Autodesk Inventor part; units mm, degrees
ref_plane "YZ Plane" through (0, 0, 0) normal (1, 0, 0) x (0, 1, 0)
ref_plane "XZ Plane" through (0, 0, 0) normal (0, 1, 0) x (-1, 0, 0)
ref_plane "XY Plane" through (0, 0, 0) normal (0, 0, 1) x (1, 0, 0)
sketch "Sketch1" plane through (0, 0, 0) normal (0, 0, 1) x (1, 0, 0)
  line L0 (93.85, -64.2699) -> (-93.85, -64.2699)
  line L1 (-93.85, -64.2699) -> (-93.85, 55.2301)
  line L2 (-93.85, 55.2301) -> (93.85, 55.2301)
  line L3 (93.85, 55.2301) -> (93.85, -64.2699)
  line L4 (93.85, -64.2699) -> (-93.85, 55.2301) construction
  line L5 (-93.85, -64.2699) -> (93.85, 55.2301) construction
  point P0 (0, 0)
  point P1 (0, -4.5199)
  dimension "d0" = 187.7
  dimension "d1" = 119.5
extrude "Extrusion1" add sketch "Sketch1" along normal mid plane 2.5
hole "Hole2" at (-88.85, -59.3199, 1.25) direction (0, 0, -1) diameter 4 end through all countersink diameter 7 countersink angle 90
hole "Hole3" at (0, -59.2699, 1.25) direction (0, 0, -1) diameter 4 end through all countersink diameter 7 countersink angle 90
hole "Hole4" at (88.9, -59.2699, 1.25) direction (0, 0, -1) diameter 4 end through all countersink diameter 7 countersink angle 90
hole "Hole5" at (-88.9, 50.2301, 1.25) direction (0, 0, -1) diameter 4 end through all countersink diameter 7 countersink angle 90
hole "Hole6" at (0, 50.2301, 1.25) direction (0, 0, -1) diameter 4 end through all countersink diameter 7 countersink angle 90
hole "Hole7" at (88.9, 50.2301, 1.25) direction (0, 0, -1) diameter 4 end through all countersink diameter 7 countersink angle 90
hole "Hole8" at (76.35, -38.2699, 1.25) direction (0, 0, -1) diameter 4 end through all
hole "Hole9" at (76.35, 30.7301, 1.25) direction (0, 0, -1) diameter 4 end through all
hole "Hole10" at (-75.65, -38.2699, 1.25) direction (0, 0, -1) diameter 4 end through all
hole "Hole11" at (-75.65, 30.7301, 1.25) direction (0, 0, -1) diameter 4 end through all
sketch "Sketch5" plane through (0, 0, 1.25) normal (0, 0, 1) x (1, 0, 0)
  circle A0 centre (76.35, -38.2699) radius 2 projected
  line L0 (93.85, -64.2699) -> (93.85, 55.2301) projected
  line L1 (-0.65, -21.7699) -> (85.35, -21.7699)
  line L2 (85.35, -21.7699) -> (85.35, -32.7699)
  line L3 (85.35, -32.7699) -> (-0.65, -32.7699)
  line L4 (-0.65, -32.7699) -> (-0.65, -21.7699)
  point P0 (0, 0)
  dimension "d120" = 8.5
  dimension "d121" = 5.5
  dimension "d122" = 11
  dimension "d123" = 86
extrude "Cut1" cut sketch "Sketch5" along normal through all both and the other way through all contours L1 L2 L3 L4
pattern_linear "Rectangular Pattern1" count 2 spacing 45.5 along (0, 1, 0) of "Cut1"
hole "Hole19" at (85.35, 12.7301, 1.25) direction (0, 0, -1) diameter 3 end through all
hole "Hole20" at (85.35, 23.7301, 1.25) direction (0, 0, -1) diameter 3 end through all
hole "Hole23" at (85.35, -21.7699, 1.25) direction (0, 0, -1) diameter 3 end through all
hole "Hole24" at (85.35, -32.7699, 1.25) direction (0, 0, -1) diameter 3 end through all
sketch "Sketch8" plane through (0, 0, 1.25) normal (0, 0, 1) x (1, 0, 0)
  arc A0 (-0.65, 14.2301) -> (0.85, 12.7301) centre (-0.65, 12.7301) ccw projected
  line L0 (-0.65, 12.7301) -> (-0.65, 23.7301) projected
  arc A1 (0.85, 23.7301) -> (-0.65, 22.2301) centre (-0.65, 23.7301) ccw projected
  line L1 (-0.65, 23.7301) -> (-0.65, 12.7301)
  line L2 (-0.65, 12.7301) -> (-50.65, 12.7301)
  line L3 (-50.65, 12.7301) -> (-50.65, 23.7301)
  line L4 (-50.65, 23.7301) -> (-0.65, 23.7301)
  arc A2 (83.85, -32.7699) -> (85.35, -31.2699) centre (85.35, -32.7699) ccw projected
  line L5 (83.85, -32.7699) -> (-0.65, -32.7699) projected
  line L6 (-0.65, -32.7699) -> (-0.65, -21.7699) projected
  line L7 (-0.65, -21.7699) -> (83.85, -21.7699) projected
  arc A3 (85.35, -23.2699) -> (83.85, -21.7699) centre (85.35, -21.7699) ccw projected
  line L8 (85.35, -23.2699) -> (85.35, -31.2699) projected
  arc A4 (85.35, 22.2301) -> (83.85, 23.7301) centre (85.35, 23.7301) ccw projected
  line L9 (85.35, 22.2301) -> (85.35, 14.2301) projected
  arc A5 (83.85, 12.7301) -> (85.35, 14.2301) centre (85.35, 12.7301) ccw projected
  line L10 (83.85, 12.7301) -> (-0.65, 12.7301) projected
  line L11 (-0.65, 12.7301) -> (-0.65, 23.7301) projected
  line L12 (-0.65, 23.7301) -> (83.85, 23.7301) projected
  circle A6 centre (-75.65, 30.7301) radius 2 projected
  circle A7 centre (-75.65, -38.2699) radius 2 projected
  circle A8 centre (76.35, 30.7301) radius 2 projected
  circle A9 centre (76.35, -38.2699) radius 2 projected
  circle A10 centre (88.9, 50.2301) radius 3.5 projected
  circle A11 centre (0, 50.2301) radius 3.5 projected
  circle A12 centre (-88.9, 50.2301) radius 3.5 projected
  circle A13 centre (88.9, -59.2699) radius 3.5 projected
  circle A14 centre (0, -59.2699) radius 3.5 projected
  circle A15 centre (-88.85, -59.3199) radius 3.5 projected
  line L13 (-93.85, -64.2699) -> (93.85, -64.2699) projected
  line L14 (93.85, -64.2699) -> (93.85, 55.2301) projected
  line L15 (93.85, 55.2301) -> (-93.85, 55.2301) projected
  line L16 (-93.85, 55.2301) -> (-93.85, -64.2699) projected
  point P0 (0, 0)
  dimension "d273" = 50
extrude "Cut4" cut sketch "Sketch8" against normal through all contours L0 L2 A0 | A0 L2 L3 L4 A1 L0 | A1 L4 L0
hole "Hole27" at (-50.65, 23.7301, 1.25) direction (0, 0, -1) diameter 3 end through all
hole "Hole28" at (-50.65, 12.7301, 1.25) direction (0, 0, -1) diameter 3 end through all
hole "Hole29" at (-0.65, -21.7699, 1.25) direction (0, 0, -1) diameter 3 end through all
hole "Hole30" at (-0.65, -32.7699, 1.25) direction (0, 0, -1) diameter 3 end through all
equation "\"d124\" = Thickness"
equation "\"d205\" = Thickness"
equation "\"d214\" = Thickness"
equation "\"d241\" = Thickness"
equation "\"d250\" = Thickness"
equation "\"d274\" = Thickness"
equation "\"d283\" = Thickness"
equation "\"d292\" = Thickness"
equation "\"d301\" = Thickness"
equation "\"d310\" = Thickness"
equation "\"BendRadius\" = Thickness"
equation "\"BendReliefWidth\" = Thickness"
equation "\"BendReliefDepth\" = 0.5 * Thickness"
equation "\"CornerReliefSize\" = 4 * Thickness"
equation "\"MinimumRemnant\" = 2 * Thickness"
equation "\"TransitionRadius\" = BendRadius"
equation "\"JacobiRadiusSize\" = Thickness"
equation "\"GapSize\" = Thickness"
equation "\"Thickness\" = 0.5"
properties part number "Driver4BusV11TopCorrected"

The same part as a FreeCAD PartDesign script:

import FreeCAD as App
import Part
import Sketcher


def add_polygon(sketch, points):
    """Adds a closed chain of lines whose ends are joined by coincident constraints."""
    first, n = sketch.GeometryCount, len(points)
    for a, b in zip(points, points[1:] + points[:1]):
        sketch.addGeometry(Part.LineSegment(App.Vector(*a, 0), App.Vector(*b, 0)), False)
    for i in range(n):
        sketch.addConstraint(Sketcher.Constraint("Coincident", first + i, 2, first + (i + 1) % n, 1))

doc = App.newDocument("Part")
body = doc.addObject("PartDesign::Body", "Body")

# Sketch on XY plane
sketch1 = body.newObject("Sketcher::SketchObject", "Sketch")
sketch1.AttachmentSupport = (doc.getObject("XY_Plane"), [""])
sketch1.MapMode = "FlatFace"
add_polygon(sketch1, [(-94, -64), (94, -64), (94, 55), (-94, 55)])  # lines 0-3
sketch1.addConstraint([
    Sketcher.Constraint("Horizontal", 0),
    Sketcher.Constraint("Vertical", 1),
    Sketcher.Constraint("Horizontal", 2),
    Sketcher.Constraint("Vertical", 3),
    Sketcher.Constraint("DistanceX", 0, 1, 0, 2, 187.7),
    Sketcher.Constraint("DistanceY", 1, 1, 1, 2, 119.5),
    Sketcher.Constraint("DistanceX", -1, 1, 0, 2, 93.85),
    Sketcher.Constraint("DistanceY", 0, 2, -1, 1, 64.27),
])
pad1 = body.newObject("PartDesign::Pad", "Pad")
pad1.Profile = sketch1
pad1.Length = 2.5
pad1.Midplane = True

# Sketch on XY plane
sketch2 = body.newObject("Sketcher::SketchObject", "Sketch001")
sketch2.AttachmentSupport = (doc.getObject("XY_Plane"), [""])
sketch2.MapMode = "FlatFace"
sketch2.AttachmentOffset = App.Placement(App.Vector(0, 0, 1.25), App.Rotation())
sketch2.addGeometry(Part.Circle(App.Vector(-88.8, -59.3, 0), App.Vector(0, 0, 1), 2), False)
sketch2.addConstraint([
    Sketcher.Constraint("Diameter", 0, 4.0),
    Sketcher.Constraint("DistanceX", 0, 3, -1, 1, 88.85),
    Sketcher.Constraint("DistanceY", 0, 3, -1, 1, 59.32),
])
doc.recompute()
hole = body.newObject("PartDesign::Hole", "Hole")
hole.Profile = sketch2
hole.ThreadType = "None"
hole.Diameter = 4
hole.DepthType = "ThroughAll"
hole.HoleCutType = "Countersink"
hole.HoleCutDiameter = 7
hole.HoleCutCountersinkAngle = 90

# Sketch on XY plane
sketch3 = body.newObject("Sketcher::SketchObject", "Sketch002")
sketch3.AttachmentSupport = (doc.getObject("XY_Plane"), [""])
sketch3.MapMode = "FlatFace"
sketch3.AttachmentOffset = App.Placement(App.Vector(0, 0, 1.25), App.Rotation())
sketch3.addGeometry(Part.Circle(App.Vector(0, -59.3, 0), App.Vector(0, 0, 1), 2), False)
sketch3.addConstraint([
    Sketcher.Constraint("PointOnObject", 0, 3, -2),
    Sketcher.Constraint("Diameter", 0, 4.0),
    Sketcher.Constraint("DistanceY", 0, 3, -1, 1, 59.27),
])
doc.recompute()
hole2 = body.newObject("PartDesign::Hole", "Hole001")
hole2.Profile = sketch3
hole2.ThreadType = "None"
hole2.Diameter = 4
hole2.DepthType = "ThroughAll"
hole2.HoleCutType = "Countersink"
hole2.HoleCutDiameter = 7
hole2.HoleCutCountersinkAngle = 90

# Sketch on XY plane
sketch4 = body.newObject("Sketcher::SketchObject", "Sketch003")
sketch4.AttachmentSupport = (doc.getObject("XY_Plane"), [""])
sketch4.MapMode = "FlatFace"
sketch4.AttachmentOffset = App.Placement(App.Vector(0, 0, 1.25), App.Rotation())
sketch4.addGeometry(Part.Circle(App.Vector(88.9, -59.3, 0), App.Vector(0, 0, 1), 2), False)
sketch4.addConstraint([
    Sketcher.Constraint("Diameter", 0, 4.0),
    Sketcher.Constraint("DistanceX", -1, 1, 0, 3, 88.9),
    Sketcher.Constraint("DistanceY", 0, 3, -1, 1, 59.27),
])
doc.recompute()
hole3 = body.newObject("PartDesign::Hole", "Hole002")
hole3.Profile = sketch4
hole3.ThreadType = "None"
hole3.Diameter = 4
hole3.DepthType = "ThroughAll"
hole3.HoleCutType = "Countersink"
hole3.HoleCutDiameter = 7
hole3.HoleCutCountersinkAngle = 90

# Sketch on XY plane
sketch5 = body.newObject("Sketcher::SketchObject", "Sketch004")
sketch5.AttachmentSupport = (doc.getObject("XY_Plane"), [""])
sketch5.MapMode = "FlatFace"
sketch5.AttachmentOffset = App.Placement(App.Vector(0, 0, 1.25), App.Rotation())
sketch5.addGeometry(Part.Circle(App.Vector(-88.9, 50.2, 0), App.Vector(0, 0, 1), 2), False)
sketch5.addConstraint([
    Sketcher.Constraint("Diameter", 0, 4.0),
    Sketcher.Constraint("DistanceX", 0, 3, -1, 1, 88.9),
    Sketcher.Constraint("DistanceY", -1, 1, 0, 3, 50.23),
])
doc.recompute()
hole4 = body.newObject("PartDesign::Hole", "Hole003")
hole4.Profile = sketch5
hole4.ThreadType = "None"
hole4.Diameter = 4
hole4.DepthType = "ThroughAll"
hole4.HoleCutType = "Countersink"
hole4.HoleCutDiameter = 7
hole4.HoleCutCountersinkAngle = 90

# Sketch on XY plane
sketch6 = body.newObject("Sketcher::SketchObject", "Sketch005")
sketch6.AttachmentSupport = (doc.getObject("XY_Plane"), [""])
sketch6.MapMode = "FlatFace"
sketch6.AttachmentOffset = App.Placement(App.Vector(0, 0, 1.25), App.Rotation())
sketch6.addGeometry(Part.Circle(App.Vector(0, 50.2, 0), App.Vector(0, 0, 1), 2), False)
sketch6.addConstraint([
    Sketcher.Constraint("PointOnObject", 0, 3, -2),
    Sketcher.Constraint("Diameter", 0, 4.0),
    Sketcher.Constraint("DistanceY", -1, 1, 0, 3, 50.23),
])
doc.recompute()
hole5 = body.newObject("PartDesign::Hole", "Hole004")
hole5.Profile = sketch6
hole5.ThreadType = "None"
hole5.Diameter = 4
hole5.DepthType = "ThroughAll"
hole5.HoleCutType = "Countersink"
hole5.HoleCutDiameter = 7
hole5.HoleCutCountersinkAngle = 90

# Sketch on XY plane
sketch7 = body.newObject("Sketcher::SketchObject", "Sketch006")
sketch7.AttachmentSupport = (doc.getObject("XY_Plane"), [""])
sketch7.MapMode = "FlatFace"
sketch7.AttachmentOffset = App.Placement(App.Vector(0, 0, 1.25), App.Rotation())
sketch7.addGeometry(Part.Circle(App.Vector(88.9, 50.2, 0), App.Vector(0, 0, 1), 2), False)
sketch7.addConstraint([
    Sketcher.Constraint("Diameter", 0, 4.0),
    Sketcher.Constraint("DistanceX", -1, 1, 0, 3, 88.9),
    Sketcher.Constraint("DistanceY", -1, 1, 0, 3, 50.23),
])
doc.recompute()
hole6 = body.newObject("PartDesign::Hole", "Hole005")
hole6.Profile = sketch7
hole6.ThreadType = "None"
hole6.Diameter = 4
hole6.DepthType = "ThroughAll"
hole6.HoleCutType = "Countersink"
hole6.HoleCutDiameter = 7
hole6.HoleCutCountersinkAngle = 90

# Sketch on XY plane
sketch8 = body.newObject("Sketcher::SketchObject", "Sketch007")
sketch8.AttachmentSupport = (doc.getObject("XY_Plane"), [""])
sketch8.MapMode = "FlatFace"
sketch8.AttachmentOffset = App.Placement(App.Vector(0, 0, 1.25), App.Rotation())
sketch8.addGeometry(Part.Circle(App.Vector(76.3, -38.3, 0), App.Vector(0, 0, 1), 2), False)
sketch8.addConstraint([
    Sketcher.Constraint("Diameter", 0, 4.0),
    Sketcher.Constraint("DistanceX", -1, 1, 0, 3, 76.35),
    Sketcher.Constraint("DistanceY", 0, 3, -1, 1, 38.27),
])
doc.recompute()
hole7 = body.newObject("PartDesign::Hole", "Hole006")
hole7.Profile = sketch8
hole7.ThreadType = "None"
hole7.Diameter = 4
hole7.DepthType = "ThroughAll"

# Sketch on XY plane
sketch9 = body.newObject("Sketcher::SketchObject", "Sketch008")
sketch9.AttachmentSupport = (doc.getObject("XY_Plane"), [""])
sketch9.MapMode = "FlatFace"
sketch9.AttachmentOffset = App.Placement(App.Vector(0, 0, 1.25), App.Rotation())
sketch9.addGeometry(Part.Circle(App.Vector(76.3, 30.7, 0), App.Vector(0, 0, 1), 2), False)
sketch9.addConstraint([
    Sketcher.Constraint("Diameter", 0, 4.0),
    Sketcher.Constraint("DistanceX", -1, 1, 0, 3, 76.35),
    Sketcher.Constraint("DistanceY", -1, 1, 0, 3, 30.73),
])
doc.recompute()
hole8 = body.newObject("PartDesign::Hole", "Hole007")
hole8.Profile = sketch9
hole8.ThreadType = "None"
hole8.Diameter = 4
hole8.DepthType = "ThroughAll"

# Sketch on XY plane
sketch10 = body.newObject("Sketcher::SketchObject", "Sketch009")
sketch10.AttachmentSupport = (doc.getObject("XY_Plane"), [""])
sketch10.MapMode = "FlatFace"
sketch10.AttachmentOffset = App.Placement(App.Vector(0, 0, 1.25), App.Rotation())
sketch10.addGeometry(Part.Circle(App.Vector(-75.7, -38.3, 0), App.Vector(0, 0, 1), 2), False)
sketch10.addConstraint([
    Sketcher.Constraint("Diameter", 0, 4.0),
    Sketcher.Constraint("DistanceX", 0, 3, -1, 1, 75.65),
    Sketcher.Constraint("DistanceY", 0, 3, -1, 1, 38.27),
])
doc.recompute()
hole9 = body.newObject("PartDesign::Hole", "Hole008")
hole9.Profile = sketch10
hole9.ThreadType = "None"
hole9.Diameter = 4
hole9.DepthType = "ThroughAll"

# Sketch on XY plane
sketch11 = body.newObject("Sketcher::SketchObject", "Sketch010")
sketch11.AttachmentSupport = (doc.getObject("XY_Plane"), [""])
sketch11.MapMode = "FlatFace"
sketch11.AttachmentOffset = App.Placement(App.Vector(0, 0, 1.25), App.Rotation())
sketch11.addGeometry(Part.Circle(App.Vector(-75.7, 30.7, 0), App.Vector(0, 0, 1), 2), False)
sketch11.addConstraint([
    Sketcher.Constraint("Diameter", 0, 4.0),
    Sketcher.Constraint("DistanceX", 0, 3, -1, 1, 75.65),
    Sketcher.Constraint("DistanceY", -1, 1, 0, 3, 30.73),
])
doc.recompute()
hole10 = body.newObject("PartDesign::Hole", "Hole009")
hole10.Profile = sketch11
hole10.ThreadType = "None"
hole10.Diameter = 4
hole10.DepthType = "ThroughAll"

# Sketch on XY plane
sketch12 = body.newObject("Sketcher::SketchObject", "Sketch011")
sketch12.AttachmentSupport = (doc.getObject("XY_Plane"), [""])
sketch12.MapMode = "FlatFace"
sketch12.AttachmentOffset = App.Placement(App.Vector(0, 0, 1.25), App.Rotation())
add_polygon(sketch12, [(85, -22), (-1, -22), (-1, -33), (85, -33)])  # lines 0-3
sketch12.addConstraint([
    Sketcher.Constraint("Horizontal", 0),
    Sketcher.Constraint("Vertical", 1),
    Sketcher.Constraint("Horizontal", 2),
    Sketcher.Constraint("Vertical", 3),
    Sketcher.Constraint("DistanceX", 0, 2, 0, 1, 86.0),
    Sketcher.Constraint("DistanceY", 1, 2, 1, 1, 11.0),
    Sketcher.Constraint("DistanceX", 0, 2, -1, 1, 0.65),
    Sketcher.Constraint("DistanceY", 0, 2, -1, 1, 21.77),
])
pocket1 = body.newObject("PartDesign::Pocket", "Pocket")
pocket1.Profile = sketch12
pocket1.Type = "ThroughAll"
pocket1.Midplane = True
doc.recompute()

linearpattern = body.newObject("PartDesign::LinearPattern", "LinearPattern")
linearpattern.Originals = [pocket1]
linearpattern.Direction = (doc.getObject("Y_Axis"), [""])
linearpattern.Mode = "offset"
linearpattern.Offset = 45.5
linearpattern.Occurrences = 2
body.Tip = linearpattern

# Sketch on XY plane
sketch13 = body.newObject("Sketcher::SketchObject", "Sketch012")
sketch13.AttachmentSupport = (doc.getObject("XY_Plane"), [""])
sketch13.MapMode = "FlatFace"
sketch13.AttachmentOffset = App.Placement(App.Vector(0, 0, 1.25), App.Rotation())
sketch13.addGeometry(Part.Circle(App.Vector(85.3, 12.7, 0), App.Vector(0, 0, 1), 1.5), False)
sketch13.addConstraint([
    Sketcher.Constraint("Diameter", 0, 3.0),
    Sketcher.Constraint("DistanceX", -1, 1, 0, 3, 85.35),
    Sketcher.Constraint("DistanceY", -1, 1, 0, 3, 12.73),
])
doc.recompute()
hole11 = body.newObject("PartDesign::Hole", "Hole010")
hole11.Profile = sketch13
hole11.ThreadType = "None"
hole11.Diameter = 3
hole11.DepthType = "ThroughAll"

# Sketch on XY plane
sketch14 = body.newObject("Sketcher::SketchObject", "Sketch013")
sketch14.AttachmentSupport = (doc.getObject("XY_Plane"), [""])
sketch14.MapMode = "FlatFace"
sketch14.AttachmentOffset = App.Placement(App.Vector(0, 0, 1.25), App.Rotation())
sketch14.addGeometry(Part.Circle(App.Vector(85.3, 23.7, 0), App.Vector(0, 0, 1), 1.5), False)
sketch14.addConstraint([
    Sketcher.Constraint("Diameter", 0, 3.0),
    Sketcher.Constraint("DistanceX", -1, 1, 0, 3, 85.35),
    Sketcher.Constraint("DistanceY", -1, 1, 0, 3, 23.73),
])
doc.recompute()
hole12 = body.newObject("PartDesign::Hole", "Hole011")
hole12.Profile = sketch14
hole12.ThreadType = "None"
hole12.Diameter = 3
hole12.DepthType = "ThroughAll"

# Sketch on XY plane
sketch15 = body.newObject("Sketcher::SketchObject", "Sketch014")
sketch15.AttachmentSupport = (doc.getObject("XY_Plane"), [""])
sketch15.MapMode = "FlatFace"
sketch15.AttachmentOffset = App.Placement(App.Vector(0, 0, 1.25), App.Rotation())
sketch15.addGeometry(Part.Circle(App.Vector(85.3, -21.8, 0), App.Vector(0, 0, 1), 1.5), False)
sketch15.addConstraint([
    Sketcher.Constraint("Diameter", 0, 3.0),
    Sketcher.Constraint("DistanceX", -1, 1, 0, 3, 85.35),
    Sketcher.Constraint("DistanceY", 0, 3, -1, 1, 21.77),
])
doc.recompute()
hole13 = body.newObject("PartDesign::Hole", "Hole012")
hole13.Profile = sketch15
hole13.ThreadType = "None"
hole13.Diameter = 3
hole13.DepthType = "ThroughAll"

# Sketch on XY plane
sketch16 = body.newObject("Sketcher::SketchObject", "Sketch015")
sketch16.AttachmentSupport = (doc.getObject("XY_Plane"), [""])
sketch16.MapMode = "FlatFace"
sketch16.AttachmentOffset = App.Placement(App.Vector(0, 0, 1.25), App.Rotation())
sketch16.addGeometry(Part.Circle(App.Vector(85.3, -32.8, 0), App.Vector(0, 0, 1), 1.5), False)
sketch16.addConstraint([
    Sketcher.Constraint("Diameter", 0, 3.0),
    Sketcher.Constraint("DistanceX", -1, 1, 0, 3, 85.35),
    Sketcher.Constraint("DistanceY", 0, 3, -1, 1, 32.77),
])
doc.recompute()
hole14 = body.newObject("PartDesign::Hole", "Hole013")
hole14.Profile = sketch16
hole14.ThreadType = "None"
hole14.Diameter = 3
hole14.DepthType = "ThroughAll"

# Sketch on XY plane
sketch17 = body.newObject("Sketcher::SketchObject", "Sketch016")
sketch17.AttachmentSupport = (doc.getObject("XY_Plane"), [""])
sketch17.MapMode = "FlatFace"
sketch17.AttachmentOffset = App.Placement(App.Vector(0, 0, 1.25), App.Rotation())
add_polygon(sketch17, [(-1, 13), (-1, 24), (-51, 24), (-51, 13)])  # lines 0-3
sketch17.addConstraint([
    Sketcher.Constraint("Vertical", 0),
    Sketcher.Constraint("Horizontal", 1),
    Sketcher.Constraint("Vertical", 2),
    Sketcher.Constraint("Horizontal", 3),
    Sketcher.Constraint("DistanceX", 1, 2, 1, 1, 50.0),
    Sketcher.Constraint("DistanceY", 0, 1, 0, 2, 11.0),
    Sketcher.Constraint("DistanceX", 0, 2, -1, 1, 0.65),
    Sketcher.Constraint("DistanceY", -1, 1, 0, 2, 23.73),
])
pocket2 = body.newObject("PartDesign::Pocket", "Pocket001")
pocket2.Profile = sketch17
pocket2.Type = "ThroughAll"

# Sketch on XY plane
sketch18 = body.newObject("Sketcher::SketchObject", "Sketch017")
sketch18.AttachmentSupport = (doc.getObject("XY_Plane"), [""])
sketch18.MapMode = "FlatFace"
sketch18.AttachmentOffset = App.Placement(App.Vector(0, 0, 1.25), App.Rotation())
sketch18.addGeometry(Part.Circle(App.Vector(-50.6, 23.7, 0), App.Vector(0, 0, 1), 1.5), False)
sketch18.addConstraint([
    Sketcher.Constraint("Diameter", 0, 3.0),
    Sketcher.Constraint("DistanceX", 0, 3, -1, 1, 50.65),
    Sketcher.Constraint("DistanceY", -1, 1, 0, 3, 23.73),
])
doc.recompute()
hole15 = body.newObject("PartDesign::Hole", "Hole014")
hole15.Profile = sketch18
hole15.ThreadType = "None"
hole15.Diameter = 3
hole15.DepthType = "ThroughAll"

# Sketch on XY plane
sketch19 = body.newObject("Sketcher::SketchObject", "Sketch018")
sketch19.AttachmentSupport = (doc.getObject("XY_Plane"), [""])
sketch19.MapMode = "FlatFace"
sketch19.AttachmentOffset = App.Placement(App.Vector(0, 0, 1.25), App.Rotation())
sketch19.addGeometry(Part.Circle(App.Vector(-50.6, 12.7, 0), App.Vector(0, 0, 1), 1.5), False)
sketch19.addConstraint([
    Sketcher.Constraint("Diameter", 0, 3.0),
    Sketcher.Constraint("DistanceX", 0, 3, -1, 1, 50.65),
    Sketcher.Constraint("DistanceY", -1, 1, 0, 3, 12.73),
])
doc.recompute()
hole16 = body.newObject("PartDesign::Hole", "Hole015")
hole16.Profile = sketch19
hole16.ThreadType = "None"
hole16.Diameter = 3
hole16.DepthType = "ThroughAll"

# Sketch on XY plane
sketch20 = body.newObject("Sketcher::SketchObject", "Sketch019")
sketch20.AttachmentSupport = (doc.getObject("XY_Plane"), [""])
sketch20.MapMode = "FlatFace"
sketch20.AttachmentOffset = App.Placement(App.Vector(0, 0, 1.25), App.Rotation())
sketch20.addGeometry(Part.Circle(App.Vector(-0.7, -21.8, 0), App.Vector(0, 0, 1), 1.5), False)
sketch20.addConstraint([
    Sketcher.Constraint("Diameter", 0, 3.0),
    Sketcher.Constraint("DistanceX", 0, 3, -1, 1, 0.65),
    Sketcher.Constraint("DistanceY", 0, 3, -1, 1, 21.77),
])
doc.recompute()
hole17 = body.newObject("PartDesign::Hole", "Hole016")
hole17.Profile = sketch20
hole17.ThreadType = "None"
hole17.Diameter = 3
hole17.DepthType = "ThroughAll"

# Sketch on XY plane
sketch21 = body.newObject("Sketcher::SketchObject", "Sketch020")
sketch21.AttachmentSupport = (doc.getObject("XY_Plane"), [""])
sketch21.MapMode = "FlatFace"
sketch21.AttachmentOffset = App.Placement(App.Vector(0, 0, 1.25), App.Rotation())
sketch21.addGeometry(Part.Circle(App.Vector(-0.7, -32.8, 0), App.Vector(0, 0, 1), 1.5), False)
sketch21.addConstraint([
    Sketcher.Constraint("Diameter", 0, 3.0),
    Sketcher.Constraint("DistanceX", 0, 3, -1, 1, 0.65),
    Sketcher.Constraint("DistanceY", 0, 3, -1, 1, 32.77),
])
doc.recompute()
hole18 = body.newObject("PartDesign::Hole", "Hole017")
hole18.Profile = sketch21
hole18.ThreadType = "None"
hole18.Diameter = 3
hole18.DepthType = "ThroughAll"

doc.recompute()
